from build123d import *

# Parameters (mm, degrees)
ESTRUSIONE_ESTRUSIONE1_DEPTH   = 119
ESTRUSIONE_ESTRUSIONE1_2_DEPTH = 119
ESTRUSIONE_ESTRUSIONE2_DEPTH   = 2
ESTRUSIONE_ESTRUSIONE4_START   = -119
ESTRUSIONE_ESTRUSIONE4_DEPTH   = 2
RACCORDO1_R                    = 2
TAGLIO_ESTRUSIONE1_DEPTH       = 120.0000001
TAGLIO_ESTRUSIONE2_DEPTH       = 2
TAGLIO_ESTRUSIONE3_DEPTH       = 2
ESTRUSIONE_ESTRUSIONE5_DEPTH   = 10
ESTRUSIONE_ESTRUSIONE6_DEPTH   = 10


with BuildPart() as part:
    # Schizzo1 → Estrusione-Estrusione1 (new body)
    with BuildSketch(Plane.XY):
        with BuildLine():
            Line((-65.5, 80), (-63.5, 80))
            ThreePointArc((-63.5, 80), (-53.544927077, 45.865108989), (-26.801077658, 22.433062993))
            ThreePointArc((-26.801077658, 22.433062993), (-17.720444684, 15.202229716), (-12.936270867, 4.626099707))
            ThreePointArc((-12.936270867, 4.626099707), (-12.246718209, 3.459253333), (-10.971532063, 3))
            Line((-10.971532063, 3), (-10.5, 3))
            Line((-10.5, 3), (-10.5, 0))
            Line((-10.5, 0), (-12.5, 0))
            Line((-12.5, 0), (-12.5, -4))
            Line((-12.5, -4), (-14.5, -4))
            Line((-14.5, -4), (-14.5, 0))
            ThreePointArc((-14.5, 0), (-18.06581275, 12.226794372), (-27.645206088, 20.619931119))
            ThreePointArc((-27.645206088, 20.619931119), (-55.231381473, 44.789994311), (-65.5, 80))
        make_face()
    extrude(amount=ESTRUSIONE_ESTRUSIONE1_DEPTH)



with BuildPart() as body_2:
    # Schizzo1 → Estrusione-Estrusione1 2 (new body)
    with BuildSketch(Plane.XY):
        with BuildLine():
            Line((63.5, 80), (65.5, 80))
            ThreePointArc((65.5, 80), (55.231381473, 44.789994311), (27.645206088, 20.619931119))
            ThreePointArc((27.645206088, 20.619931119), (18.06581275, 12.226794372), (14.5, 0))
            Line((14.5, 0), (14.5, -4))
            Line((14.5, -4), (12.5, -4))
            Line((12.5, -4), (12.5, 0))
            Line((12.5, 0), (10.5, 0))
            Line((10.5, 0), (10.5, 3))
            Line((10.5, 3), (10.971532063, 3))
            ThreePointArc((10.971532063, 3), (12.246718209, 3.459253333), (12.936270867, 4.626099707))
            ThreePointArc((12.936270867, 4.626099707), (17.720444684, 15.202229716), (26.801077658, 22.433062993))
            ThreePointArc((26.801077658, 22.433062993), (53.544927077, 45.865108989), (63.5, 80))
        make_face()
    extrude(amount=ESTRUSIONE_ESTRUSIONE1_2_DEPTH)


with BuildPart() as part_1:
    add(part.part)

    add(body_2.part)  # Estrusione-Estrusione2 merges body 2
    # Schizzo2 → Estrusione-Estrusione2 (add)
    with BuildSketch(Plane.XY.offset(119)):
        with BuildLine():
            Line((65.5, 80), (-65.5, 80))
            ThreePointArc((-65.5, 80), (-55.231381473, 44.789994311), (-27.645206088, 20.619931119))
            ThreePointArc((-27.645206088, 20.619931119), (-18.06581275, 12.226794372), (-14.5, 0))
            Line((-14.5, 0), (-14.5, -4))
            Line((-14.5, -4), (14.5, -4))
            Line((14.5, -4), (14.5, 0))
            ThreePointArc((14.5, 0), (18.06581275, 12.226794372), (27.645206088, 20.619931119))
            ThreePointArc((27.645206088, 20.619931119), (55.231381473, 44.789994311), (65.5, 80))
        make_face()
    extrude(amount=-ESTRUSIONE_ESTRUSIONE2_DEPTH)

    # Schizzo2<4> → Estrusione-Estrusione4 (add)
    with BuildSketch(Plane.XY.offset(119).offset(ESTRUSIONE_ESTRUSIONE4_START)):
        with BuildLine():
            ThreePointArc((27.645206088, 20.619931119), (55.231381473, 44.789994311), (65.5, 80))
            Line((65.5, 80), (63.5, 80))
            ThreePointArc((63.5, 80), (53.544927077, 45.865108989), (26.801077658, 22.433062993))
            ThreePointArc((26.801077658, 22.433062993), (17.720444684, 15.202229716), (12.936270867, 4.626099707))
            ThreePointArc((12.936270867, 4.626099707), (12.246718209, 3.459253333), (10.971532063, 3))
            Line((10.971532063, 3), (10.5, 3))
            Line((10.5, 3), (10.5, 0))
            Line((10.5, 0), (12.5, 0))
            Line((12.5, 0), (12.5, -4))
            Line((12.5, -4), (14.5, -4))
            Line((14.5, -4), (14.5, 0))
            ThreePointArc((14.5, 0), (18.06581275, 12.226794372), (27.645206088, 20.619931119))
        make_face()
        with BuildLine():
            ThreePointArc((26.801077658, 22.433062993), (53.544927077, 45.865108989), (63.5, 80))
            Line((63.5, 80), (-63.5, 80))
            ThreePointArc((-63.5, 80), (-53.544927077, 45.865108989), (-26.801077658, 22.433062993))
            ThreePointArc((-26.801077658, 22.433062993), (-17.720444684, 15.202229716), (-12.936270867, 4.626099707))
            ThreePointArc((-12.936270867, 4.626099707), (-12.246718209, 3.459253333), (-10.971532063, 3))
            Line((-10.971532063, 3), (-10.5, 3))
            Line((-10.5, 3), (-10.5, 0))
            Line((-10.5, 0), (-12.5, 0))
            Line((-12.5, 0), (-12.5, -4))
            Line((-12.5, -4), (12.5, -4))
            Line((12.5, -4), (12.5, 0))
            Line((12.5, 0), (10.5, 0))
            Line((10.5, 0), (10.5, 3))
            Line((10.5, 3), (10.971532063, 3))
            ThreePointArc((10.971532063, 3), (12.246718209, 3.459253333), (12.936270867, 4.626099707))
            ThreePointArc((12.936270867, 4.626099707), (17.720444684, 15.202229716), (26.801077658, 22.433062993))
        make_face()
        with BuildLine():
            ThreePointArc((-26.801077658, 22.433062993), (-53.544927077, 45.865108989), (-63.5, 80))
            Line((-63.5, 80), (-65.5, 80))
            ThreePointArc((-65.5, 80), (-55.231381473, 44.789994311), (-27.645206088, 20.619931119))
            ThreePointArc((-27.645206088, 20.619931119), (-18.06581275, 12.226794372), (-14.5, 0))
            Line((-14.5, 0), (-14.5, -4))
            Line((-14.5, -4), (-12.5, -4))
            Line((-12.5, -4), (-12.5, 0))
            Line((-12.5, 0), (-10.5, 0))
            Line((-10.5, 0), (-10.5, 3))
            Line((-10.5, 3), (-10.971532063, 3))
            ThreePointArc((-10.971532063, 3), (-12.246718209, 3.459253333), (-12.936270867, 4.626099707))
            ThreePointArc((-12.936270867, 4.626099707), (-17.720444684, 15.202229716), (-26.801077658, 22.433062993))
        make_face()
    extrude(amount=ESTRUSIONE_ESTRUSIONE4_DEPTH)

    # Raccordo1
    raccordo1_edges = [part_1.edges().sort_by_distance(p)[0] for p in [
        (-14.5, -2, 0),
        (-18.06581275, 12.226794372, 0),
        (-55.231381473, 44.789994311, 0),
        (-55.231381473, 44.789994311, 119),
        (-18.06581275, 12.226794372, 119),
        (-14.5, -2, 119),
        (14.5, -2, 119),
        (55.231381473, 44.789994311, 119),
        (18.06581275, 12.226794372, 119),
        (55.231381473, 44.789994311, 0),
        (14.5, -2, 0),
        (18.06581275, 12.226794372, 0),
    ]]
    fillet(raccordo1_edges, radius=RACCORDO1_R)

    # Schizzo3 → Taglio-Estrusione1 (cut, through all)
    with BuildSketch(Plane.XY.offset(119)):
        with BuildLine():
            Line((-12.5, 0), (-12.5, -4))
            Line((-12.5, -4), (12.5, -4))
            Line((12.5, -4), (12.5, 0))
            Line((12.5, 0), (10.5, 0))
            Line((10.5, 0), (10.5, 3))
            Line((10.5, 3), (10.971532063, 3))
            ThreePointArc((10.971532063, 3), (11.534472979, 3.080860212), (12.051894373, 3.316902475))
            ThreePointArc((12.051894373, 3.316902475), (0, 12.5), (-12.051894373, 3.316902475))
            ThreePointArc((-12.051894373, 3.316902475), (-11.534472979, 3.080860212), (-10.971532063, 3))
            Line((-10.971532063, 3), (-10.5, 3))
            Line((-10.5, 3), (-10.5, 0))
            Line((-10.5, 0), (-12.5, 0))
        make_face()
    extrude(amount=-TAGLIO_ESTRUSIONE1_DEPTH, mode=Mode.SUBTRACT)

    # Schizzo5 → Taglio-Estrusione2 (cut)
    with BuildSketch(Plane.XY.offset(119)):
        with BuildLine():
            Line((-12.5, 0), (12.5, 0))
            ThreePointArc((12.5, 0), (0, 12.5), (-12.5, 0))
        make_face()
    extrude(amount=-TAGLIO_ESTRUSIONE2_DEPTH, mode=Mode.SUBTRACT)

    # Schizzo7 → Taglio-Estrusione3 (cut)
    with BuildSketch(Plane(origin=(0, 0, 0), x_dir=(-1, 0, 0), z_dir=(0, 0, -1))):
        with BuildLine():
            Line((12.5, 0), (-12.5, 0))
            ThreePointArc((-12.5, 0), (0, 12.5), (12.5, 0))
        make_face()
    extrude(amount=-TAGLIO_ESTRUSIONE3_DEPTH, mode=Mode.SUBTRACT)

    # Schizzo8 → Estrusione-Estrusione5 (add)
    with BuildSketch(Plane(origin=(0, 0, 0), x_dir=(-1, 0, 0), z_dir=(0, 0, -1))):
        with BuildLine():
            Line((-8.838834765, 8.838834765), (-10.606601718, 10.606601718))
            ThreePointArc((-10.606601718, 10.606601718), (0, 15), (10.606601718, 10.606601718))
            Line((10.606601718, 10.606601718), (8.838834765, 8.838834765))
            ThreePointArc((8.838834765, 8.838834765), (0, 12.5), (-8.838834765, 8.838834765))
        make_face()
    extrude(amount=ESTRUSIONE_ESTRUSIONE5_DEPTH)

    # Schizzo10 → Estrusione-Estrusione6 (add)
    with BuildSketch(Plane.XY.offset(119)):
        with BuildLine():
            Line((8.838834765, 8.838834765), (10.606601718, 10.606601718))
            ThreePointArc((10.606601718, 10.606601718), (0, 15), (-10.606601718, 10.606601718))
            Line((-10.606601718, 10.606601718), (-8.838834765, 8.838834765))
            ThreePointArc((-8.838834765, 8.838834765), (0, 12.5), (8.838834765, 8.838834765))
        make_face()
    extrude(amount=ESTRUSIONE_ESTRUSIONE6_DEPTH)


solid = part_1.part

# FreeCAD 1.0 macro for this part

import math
import FreeCAD as App
import Part
import Sketcher
from FreeCAD import Vector
Q = App.Units.Quantity


def edges_at(feature, points):
    """Names of the edges that pass closest to the given points."""
    edges = feature.Shape.Edges
    near = lambda p: min(range(len(edges)), key=lambda i: edges[i].distToShape(Part.Vertex(*p))[0])
    return sorted({f"Edge{near(p) + 1}" for p in points})

doc = App.newDocument("Part")
body = doc.addObject("PartDesign::Body", "Body")

sketch1 = body.newObject("Sketcher::SketchObject", "Sketch")
sketch1.AttachmentSupport = (doc.getObject("XY_Plane"), [""])
sketch1.MapMode = "FlatFace"
sketch1.addGeometry([
    Part.LineSegment(Vector(-63.5, 80, 0), Vector(-65.5, 80, 0)),
    Part.ArcOfCircle(Part.Circle(Vector(0, 80, 0), Vector(0, 0, 1), 65.5), math.radians(180), math.radians(245)),
    Part.ArcOfCircle(Part.Circle(Vector(-37.25, 0, 0), Vector(0, 0, 1), 22.75), math.radians(0), math.radians(65)),
    Part.LineSegment(Vector(-14.5, 0, 0), Vector(-14.5, -4, 0)),
    Part.LineSegment(Vector(-14.5, -4, 0), Vector(-12.5, -4, 0)),
    Part.LineSegment(Vector(-12.5, -4, 0), Vector(-12.5, 0, 0)),
    Part.LineSegment(Vector(-12.5, 0, 0), Vector(-10.5, 0, 0)),
    Part.LineSegment(Vector(-10.5, 0, 0), Vector(-10.5, 3, 0)),
    Part.LineSegment(Vector(-10.5, 3, 0), Vector(-10.97, 3, 0)),
    Part.ArcOfCircle(Part.Circle(Vector(-10.97, 5, 0), Vector(0, 0, 1), 2), math.radians(-169), math.radians(-90)),
    Part.ArcOfCircle(Part.Circle(Vector(-37.25, 0, 0), Vector(0, 0, 1), 24.75), math.radians(11), math.radians(65)),
    Part.ArcOfCircle(Part.Circle(Vector(0, 80, 0), Vector(0, 0, 1), 63.5), math.radians(180), math.radians(245)),
], False)
sketch1.addConstraint([
    Sketcher.Constraint("Coincident", 0, 2, 1, 1),
    Sketcher.Constraint("Tangent", 1, 2, 2, 2),
    Sketcher.Constraint("Tangent", 2, 1, 3, 1),
    Sketcher.Constraint("Coincident", 3, 2, 4, 1),
    Sketcher.Constraint("Coincident", 4, 2, 5, 1),
    Sketcher.Constraint("Coincident", 5, 2, 6, 1),
    Sketcher.Constraint("Coincident", 6, 2, 7, 1),
    Sketcher.Constraint("Coincident", 7, 2, 8, 1),
    Sketcher.Constraint("Tangent", 8, 2, 9, 2),
    Sketcher.Constraint("Tangent", 9, 1, 10, 1),
    Sketcher.Constraint("Tangent", 10, 2, 11, 2),
    Sketcher.Constraint("Coincident", 11, 1, 0, 1),
    Sketcher.Constraint("Horizontal", 0),
    Sketcher.Constraint("Vertical", 3),
    Sketcher.Constraint("Horizontal", 4),
    Sketcher.Constraint("Vertical", 5),
    Sketcher.Constraint("Horizontal", 6),
    Sketcher.Constraint("Vertical", 7),
    Sketcher.Constraint("Horizontal", 8),
    Sketcher.Constraint("Coincident", 10, 3, 2, 3),
    Sketcher.Constraint("Coincident", 11, 3, 1, 3),
    Sketcher.Constraint("PointOnObject", 1, 3, -2),
    Sketcher.Constraint("PointOnObject", 2, 3, -1),
    Sketcher.Constraint("PointOnObject", 5, 2, -1),
    Sketcher.Constraint("Horizontal", 11, 3, 0, 2),
    Sketcher.Constraint("Equal", 0, 4),
    Sketcher.Constraint("Equal", 4, 6),
    Sketcher.Constraint("Radius", 9, Q("2 mm")),
    Sketcher.Constraint("Radius", 1, Q("65.5 mm")),
    Sketcher.Constraint("Radius", 11, Q("63.5 mm")),
    Sketcher.Constraint("DistanceY", 3, 2, 3, 1, Q("4 mm")),
    Sketcher.Constraint("DistanceY", 7, 1, 7, 2, Q("3 mm")),
    Sketcher.Constraint("DistanceY", -1, 1, 1, 3, Q("80 mm")),
    Sketcher.Constraint("DistanceX", 2, 1, -1, 1, Q("14.5 mm")),
])
pad1 = body.newObject("PartDesign::Pad", "Pad")
pad1.Profile = sketch1
pad1.Length = 119
body2 = doc.addObject("PartDesign::Body", "Body001")

sketch2 = body2.newObject("Sketcher::SketchObject", "Sketch001")
sketch2.AttachmentSupport = (doc.getObject("XY_Plane001"), [""])
sketch2.MapMode = "FlatFace"
sketch2.addGeometry([
    Part.LineSegment(Vector(65.5, 80, 0), Vector(63.5, 80, 0)),
    Part.ArcOfCircle(Part.Circle(Vector(0, 80, 0), Vector(0, 0, 1), 63.5), math.radians(-65), math.radians(0)),
    Part.ArcOfCircle(Part.Circle(Vector(37.25, 0, 0), Vector(0, 0, 1), 24.75), math.radians(115), math.radians(169)),
    Part.ArcOfCircle(Part.Circle(Vector(10.97, 5, 0), Vector(0, 0, 1), 2), math.radians(-90), math.radians(-11)),
    Part.LineSegment(Vector(10.97, 3, 0), Vector(10.5, 3, 0)),
    Part.LineSegment(Vector(10.5, 3, 0), Vector(10.5, 0, 0)),
    Part.LineSegment(Vector(10.5, 0, 0), Vector(12.5, 0, 0)),
    Part.LineSegment(Vector(12.5, 0, 0), Vector(12.5, -4, 0)),
    Part.LineSegment(Vector(12.5, -4, 0), Vector(14.5, -4, 0)),
    Part.LineSegment(Vector(14.5, -4, 0), Vector(14.5, 0, 0)),
    Part.ArcOfCircle(Part.Circle(Vector(37.25, 0, 0), Vector(0, 0, 1), 22.75), math.radians(115), math.radians(180)),
    Part.ArcOfCircle(Part.Circle(Vector(0, 80, 0), Vector(0, 0, 1), 65.5), math.radians(-65), math.radians(0)),
], False)
sketch2.addConstraint([
    Sketcher.Constraint("Coincident", 0, 2, 1, 2),
    Sketcher.Constraint("Tangent", 1, 1, 2, 1),
    Sketcher.Constraint("Tangent", 2, 2, 3, 2),
    Sketcher.Constraint("Tangent", 3, 1, 4, 1),
    Sketcher.Constraint("Coincident", 4, 2, 5, 1),
    Sketcher.Constraint("Coincident", 5, 2, 6, 1),
    Sketcher.Constraint("Coincident", 6, 2, 7, 1),
    Sketcher.Constraint("Coincident", 7, 2, 8, 1),
    Sketcher.Constraint("Coincident", 8, 2, 9, 1),
    Sketcher.Constraint("Tangent", 9, 2, 10, 2),
    Sketcher.Constraint("Tangent", 10, 1, 11, 1),
    Sketcher.Constraint("Coincident", 11, 2, 0, 1),
    Sketcher.Constraint("Horizontal", 0),
    Sketcher.Constraint("Horizontal", 4),
    Sketcher.Constraint("Vertical", 5),
    Sketcher.Constraint("Horizontal", 6),
    Sketcher.Constraint("Vertical", 7),
    Sketcher.Constraint("Horizontal", 8),
    Sketcher.Constraint("Vertical", 9),
    Sketcher.Constraint("Coincident", 10, 3, 2, 3),
    Sketcher.Constraint("Coincident", 11, 3, 1, 3),
    Sketcher.Constraint("PointOnObject", 1, 3, -2),
    Sketcher.Constraint("PointOnObject", 2, 3, -1),
    Sketcher.Constraint("PointOnObject", 5, 2, -1),
    Sketcher.Constraint("Horizontal", 11, 3, 0, 2),
    Sketcher.Constraint("Equal", 0, 6),
    Sketcher.Constraint("Equal", 6, 8),
    Sketcher.Constraint("Radius", 3, Q("2 mm")),
    Sketcher.Constraint("Radius", 1, Q("63.5 mm")),
    Sketcher.Constraint("Radius", 11, Q("65.5 mm")),
    Sketcher.Constraint("DistanceY", 5, 2, 5, 1, Q("3 mm")),
    Sketcher.Constraint("DistanceY", 7, 2, 7, 1, Q("4 mm")),
    Sketcher.Constraint("DistanceY", -1, 1, 1, 3, Q("80 mm")),
    Sketcher.Constraint("DistanceX", -1, 1, 4, 2, Q("10.5 mm")),
])
pad2 = body2.newObject("PartDesign::Pad", "Pad001")
pad2.Profile = sketch2
pad2.Length = 119
body.AllowCompound = True
doc.recompute()

boolean = body.newObject("PartDesign::Boolean", "Boolean")
boolean.Type = "Fuse"
boolean.addObjects([body2])

sketch3 = body.newObject("Sketcher::SketchObject", "Sketch002")
sketch3.AttachmentSupport = (doc.getObject("XY_Plane"), [""])
sketch3.MapMode = "FlatFace"
sketch3.AttachmentOffset = App.Placement(Vector(0, 0, 119), App.Rotation())
sketch3.addGeometry([
    Part.LineSegment(Vector(65.5, 80, 0), Vector(-65.5, 80, 0)),
    Part.ArcOfCircle(Part.Circle(Vector(0, 80, 0), Vector(0, 0, 1), 65.5), math.radians(180), math.radians(245)),
    Part.ArcOfCircle(Part.Circle(Vector(-37.2, 0, 0), Vector(0, 0, 1), 22.7), math.radians(0), math.radians(65)),
    Part.LineSegment(Vector(-14.5, 0, 0), Vector(-14.5, -4, 0)),
    Part.LineSegment(Vector(-14.5, -4, 0), Vector(14.5, -4, 0)),
    Part.LineSegment(Vector(14.5, -4, 0), Vector(14.5, 0, 0)),
    Part.ArcOfCircle(Part.Circle(Vector(37.2, 0, 0), Vector(0, 0, 1), 22.7), math.radians(115), math.radians(180)),
    Part.ArcOfCircle(Part.Circle(Vector(0, 80, 0), Vector(0, 0, 1), 65.5), math.radians(-65), math.radians(0)),
], False)
sketch3.addConstraint([
    Sketcher.Constraint("Coincident", 0, 2, 1, 1),
    Sketcher.Constraint("Tangent", 1, 2, 2, 2),
    Sketcher.Constraint("Tangent", 2, 1, 3, 1),
    Sketcher.Constraint("Coincident", 3, 2, 4, 1),
    Sketcher.Constraint("Coincident", 4, 2, 5, 1),
    Sketcher.Constraint("Tangent", 5, 2, 6, 2),
    Sketcher.Constraint("Tangent", 6, 1, 7, 1),
    Sketcher.Constraint("Coincident", 7, 2, 0, 1),
    Sketcher.Constraint("Horizontal", 0),
    Sketcher.Constraint("Vertical", 3),
    Sketcher.Constraint("Horizontal", 4),
    Sketcher.Constraint("Vertical", 5),
    Sketcher.Constraint("Coincident", 7, 3, 1, 3),
    Sketcher.Constraint("Equal", 2, 6),
    Sketcher.Constraint("Equal", 1, 7),
    Sketcher.Constraint("Symmetric", 2, 3, 6, 3, -1, 1),
    Sketcher.Constraint("PointOnObject", 1, 3, -2),
    Sketcher.Constraint("Horizontal", 7, 3, 0, 2),
    Sketcher.Constraint("Radius", 1, Q("65.5 mm")),
    Sketcher.Constraint("DistanceX", 4, 1, 4, 2, Q("29 mm")),
    Sketcher.Constraint("DistanceY", 3, 2, 3, 1, Q("4 mm")),
    Sketcher.Constraint("DistanceY", -1, 1, 1, 3, Q("80 mm")),
])
pad3 = body.newObject("PartDesign::Pad", "Pad002")
pad3.Profile = sketch3
pad3.Length = 2
pad3.Reversed = True

sketch4 = body.newObject("Sketcher::SketchObject", "Sketch003")
sketch4.AttachmentSupport = (doc.getObject("XY_Plane"), [""])
sketch4.MapMode = "FlatFace"
sketch4.addGeometry([
    Part.ArcOfCircle(Part.Circle(Vector(0, 80, 0), Vector(0, 0, 1), 65.5), math.radians(-65), math.radians(0)),
    Part.LineSegment(Vector(65.5, 80, 0), Vector(-65.5, 80, 0)),
    Part.ArcOfCircle(Part.Circle(Vector(0, 80, 0), Vector(0, 0, 1), 65.5), math.radians(180), math.radians(245)),
    Part.ArcOfCircle(Part.Circle(Vector(-37.2, 0, 0), Vector(0, 0, 1), 22.7), math.radians(0), math.radians(65)),
    Part.LineSegment(Vector(-14.5, 0, 0), Vector(-14.5, -4, 0)),
    Part.LineSegment(Vector(-14.5, -4, 0), Vector(14.5, -4, 0)),
    Part.LineSegment(Vector(14.5, -4, 0), Vector(14.5, 0, 0)),
    Part.ArcOfCircle(Part.Circle(Vector(37.2, 0, 0), Vector(0, 0, 1), 22.7), math.radians(115), math.radians(180)),
], False)
sketch4.addConstraint([
    Sketcher.Constraint("Coincident", 0, 2, 1, 1),
    Sketcher.Constraint("Coincident", 1, 2, 2, 1),
    Sketcher.Constraint("Tangent", 2, 2, 3, 2),
    Sketcher.Constraint("Tangent", 3, 1, 4, 1),
    Sketcher.Constraint("Coincident", 4, 2, 5, 1),
    Sketcher.Constraint("Coincident", 5, 2, 6, 1),
    Sketcher.Constraint("Tangent", 6, 2, 7, 2),
    Sketcher.Constraint("Tangent", 7, 1, 0, 1),
    Sketcher.Constraint("Horizontal", 1),
    Sketcher.Constraint("Vertical", 4),
    Sketcher.Constraint("Horizontal", 5),
    Sketcher.Constraint("Vertical", 6),
    Sketcher.Constraint("Coincident", 2, 3, 0, 3),
    Sketcher.Constraint("Equal", 0, 2),
    Sketcher.Constraint("Equal", 3, 7),
    Sketcher.Constraint("Symmetric", 3, 3, 7, 3, -1, 1),
    Sketcher.Constraint("PointOnObject", 0, 3, -2),
    Sketcher.Constraint("Horizontal", 2, 3, 0, 2),
    Sketcher.Constraint("Radius", 0, Q("65.5 mm")),
    Sketcher.Constraint("DistanceX", 5, 1, 5, 2, Q("29 mm")),
    Sketcher.Constraint("DistanceY", 4, 2, 4, 1, Q("4 mm")),
    Sketcher.Constraint("DistanceY", -1, 1, 0, 3, Q("80 mm")),
])
pad4 = body.newObject("PartDesign::Pad", "Pad003")
pad4.Profile = sketch4
pad4.Length = 2
doc.recompute()

fillet = body.newObject("PartDesign::Fillet", "Fillet")
fillet.Base = (pad4, edges_at(pad4, [
    (-14.5, -2, 0),
    (-18.066, 12.227, 0),
    (-55.231, 44.79, 0),
    (-55.231, 44.79, 119),
    (-18.066, 12.227, 119),
    (-14.5, -2, 119),
    (14.5, -2, 119),
    (55.231, 44.79, 119),
    (18.066, 12.227, 119),
    (55.231, 44.79, 0),
    (14.5, -2, 0),
    (18.066, 12.227, 0),
]))
fillet.Radius = 2

sketch5 = body.newObject("Sketcher::SketchObject", "Sketch004")
sketch5.AttachmentSupport = (doc.getObject("XY_Plane"), [""])
sketch5.MapMode = "FlatFace"
sketch5.AttachmentOffset = App.Placement(Vector(0, 0, 119), App.Rotation())
sketch5.addGeometry([
    Part.LineSegment(Vector(-12.5, 0, 0), Vector(-12.5, -4, 0)),
    Part.LineSegment(Vector(-12.5, -4, 0), Vector(12.5, -4, 0)),
    Part.LineSegment(Vector(12.5, -4, 0), Vector(12.5, 0, 0)),
    Part.LineSegment(Vector(12.5, 0, 0), Vector(10.5, 0, 0)),
    Part.LineSegment(Vector(10.5, 0, 0), Vector(10.5, 3, 0)),
    Part.LineSegment(Vector(10.5, 3, 0), Vector(10.97, 3, 0)),
    Part.ArcOfCircle(Part.Circle(Vector(10.97, 5, 0), Vector(0, 0, 1), 2), math.radians(-90), math.radians(-57)),
    Part.ArcOfCircle(Part.Circle(Vector(0, 0, 0), Vector(0, 0, 1), 12.5), math.radians(15), math.radians(165)),
    Part.ArcOfCircle(Part.Circle(Vector(-10.97, 5, 0), Vector(0, 0, 1), 2), math.radians(-123), math.radians(-90)),
    Part.LineSegment(Vector(-10.97, 3, 0), Vector(-10.5, 3, 0)),
    Part.LineSegment(Vector(-10.5, 3, 0), Vector(-10.5, 0, 0)),
    Part.LineSegment(Vector(-10.5, 0, 0), Vector(-12.5, 0, 0)),
], False)
sketch5.addConstraint([
    Sketcher.Constraint("Coincident", 0, 2, 1, 1),
    Sketcher.Constraint("Coincident", 1, 2, 2, 1),
    Sketcher.Constraint("Coincident", 2, 2, 3, 1),
    Sketcher.Constraint("Coincident", 3, 2, 4, 1),
    Sketcher.Constraint("Coincident", 4, 2, 5, 1),
    Sketcher.Constraint("Tangent", 5, 2, 6, 1),
    Sketcher.Constraint("Coincident", 6, 2, 7, 1),
    Sketcher.Constraint("Coincident", 7, 2, 8, 1),
    Sketcher.Constraint("Tangent", 8, 2, 9, 1),
    Sketcher.Constraint("Coincident", 9, 2, 10, 1),
    Sketcher.Constraint("Coincident", 10, 2, 11, 1),
    Sketcher.Constraint("Coincident", 11, 2, 0, 1),
    Sketcher.Constraint("Vertical", 0),
    Sketcher.Constraint("Horizontal", 1),
    Sketcher.Constraint("Vertical", 2),
    Sketcher.Constraint("Horizontal", 3),
    Sketcher.Constraint("Vertical", 4),
    Sketcher.Constraint("Horizontal", 5),
    Sketcher.Constraint("Horizontal", 9),
    Sketcher.Constraint("Vertical", 10),
    Sketcher.Constraint("Horizontal", 11),
    Sketcher.Constraint("Coincident", 7, 3, -1, 1),
    Sketcher.Constraint("Equal", 6, 8),
    Sketcher.Constraint("Symmetric", 3, 2, 10, 2, -1, 1),
    Sketcher.Constraint("Symmetric", 6, 3, 8, 3, -2),
    Sketcher.Constraint("Symmetric", 2, 2, 11, 2, -2),
    Sketcher.Constraint("Radius", 6, Q("2 mm")),
    Sketcher.Constraint("Radius", 7, Q("12.5 mm")),
    Sketcher.Constraint("DistanceX", 1, 1, 1, 2, Q("25 mm")),
    Sketcher.Constraint("DistanceX", 3, 2, 3, 1, Q("2 mm")),
    Sketcher.Constraint("DistanceY", 0, 2, 0, 1, Q("4 mm")),
    Sketcher.Constraint("DistanceY", 4, 1, 4, 2, Q("3 mm")),
    Sketcher.Constraint("DistanceX", 5, 1, 5, 2, Q("0.471532 mm")),
])
pocket1 = body.newObject("PartDesign::Pocket", "Pocket")
pocket1.Profile = sketch5
pocket1.Type = "ThroughAll"

sketch6 = body.newObject("Sketcher::SketchObject", "Sketch005")
sketch6.AttachmentSupport = (doc.getObject("XY_Plane"), [""])
sketch6.MapMode = "FlatFace"
sketch6.AttachmentOffset = App.Placement(Vector(0, 0, 119), App.Rotation())
sketch6.addGeometry([
    Part.LineSegment(Vector(-12, 0, 0), Vector(12, 0, 0)),
    Part.ArcOfCircle(Part.Circle(Vector(0, 0, 0), Vector(0, 0, 1), 12), math.radians(0), math.radians(180)),
], False)
sketch6.addConstraint([
    Sketcher.Constraint("Coincident", 0, 1, 1, 2),
    Sketcher.Constraint("Coincident", 1, 1, 0, 2),
    Sketcher.Constraint("Horizontal", 0),
    Sketcher.Constraint("Coincident", 1, 3, -1, 1),
    Sketcher.Constraint("PointOnObject", 0, 1, -1),
    Sketcher.Constraint("Radius", 1, Q("12.5 mm")),
])
pocket2 = body.newObject("PartDesign::Pocket", "Pocket001")
pocket2.Profile = sketch6
pocket2.Length = 2

sketch7 = body.newObject("Sketcher::SketchObject", "Sketch006")
sketch7.AttachmentSupport = (doc.getObject("XY_Plane"), [""])
sketch7.MapMode = "FlatFace"
sketch7.addGeometry([
    Part.LineSegment(Vector(12, 0, 0), Vector(-12, 0, 0)),
    Part.ArcOfCircle(Part.Circle(Vector(0, 0, 0), Vector(0, 0, 1), 12), math.radians(0), math.radians(180)),
], False)
sketch7.addConstraint([
    Sketcher.Constraint("Coincident", 0, 1, 1, 1),
    Sketcher.Constraint("Coincident", 1, 2, 0, 2),
    Sketcher.Constraint("Horizontal", 0),
    Sketcher.Constraint("Coincident", 1, 3, -1, 1),
    Sketcher.Constraint("PointOnObject", 0, 1, -1),
    Sketcher.Constraint("Radius", 1, Q("12.5 mm")),
])
pocket3 = body.newObject("PartDesign::Pocket", "Pocket002")
pocket3.Profile = sketch7
pocket3.Length = 2
pocket3.Reversed = True

sketch8 = body.newObject("Sketcher::SketchObject", "Sketch007")
sketch8.AttachmentSupport = (doc.getObject("XY_Plane"), [""])
sketch8.MapMode = "FlatFace"
sketch8.addGeometry([
    Part.LineSegment(Vector(10.6, 10.6, 0), Vector(8.8, 8.8, 0)),
    Part.ArcOfCircle(Part.Circle(Vector(0, 0, 0), Vector(0, 0, 1), 12.5), math.radians(45), math.radians(135)),
    Part.LineSegment(Vector(-8.8, 8.8, 0), Vector(-10.6, 10.6, 0)),
    Part.ArcOfCircle(Part.Circle(Vector(0, 0, 0), Vector(0, 0, 1), 15), math.radians(45), math.radians(135)),
], False)
sketch8.addConstraint([
    Sketcher.Constraint("Coincident", 0, 2, 1, 1),
    Sketcher.Constraint("Coincident", 1, 2, 2, 1),
    Sketcher.Constraint("Coincident", 2, 2, 3, 2),
    Sketcher.Constraint("Coincident", 3, 1, 0, 1),
    Sketcher.Constraint("Coincident", 1, 3, -1, 1),
    Sketcher.Constraint("Coincident", 3, 3, -1, 1),
    Sketcher.Constraint("Perpendicular", 0, 2),
    Sketcher.Constraint("Horizontal", 0, 2, 1, 2),
    Sketcher.Constraint("Horizontal", 2, 2, 3, 1),
    Sketcher.Constraint("Radius", 3, Q("15 mm")),
    Sketcher.Constraint("Radius", 1, Q("12.5 mm")),
    Sketcher.Constraint("DistanceX", 2, 2, -1, 1, Q("10.606602 mm")),
])
pad5 = body.newObject("PartDesign::Pad", "Pad004")
pad5.Profile = sketch8
pad5.Length = 10
pad5.Reversed = True

sketch9 = body.newObject("Sketcher::SketchObject", "Sketch008")
sketch9.AttachmentSupport = (doc.getObject("XY_Plane"), [""])
sketch9.MapMode = "FlatFace"
sketch9.AttachmentOffset = App.Placement(Vector(0, 0, 119), App.Rotation())
sketch9.addGeometry([
    Part.LineSegment(Vector(8.8, 8.8, 0), Vector(10.6, 10.6, 0)),
    Part.ArcOfCircle(Part.Circle(Vector(0, 0, 0), Vector(0, 0, 1), 15), math.radians(45), math.radians(135)),
    Part.LineSegment(Vector(-10.6, 10.6, 0), Vector(-8.8, 8.8, 0)),
    Part.ArcOfCircle(Part.Circle(Vector(0, 0, 0), Vector(0, 0, 1), 12.5), math.radians(45), math.radians(135)),
], False)
sketch9.addConstraint([
    Sketcher.Constraint("Coincident", 0, 2, 1, 1),
    Sketcher.Constraint("Coincident", 1, 2, 2, 1),
    Sketcher.Constraint("Coincident", 2, 2, 3, 2),
    Sketcher.Constraint("Coincident", 3, 1, 0, 1),
    Sketcher.Constraint("Coincident", 1, 3, -1, 1),
    Sketcher.Constraint("Coincident", 3, 3, -1, 1),
    Sketcher.Constraint("Perpendicular", 0, 2),
    Sketcher.Constraint("Horizontal", 0, 2, 1, 2),
    Sketcher.Constraint("Horizontal", 2, 2, 3, 1),
    Sketcher.Constraint("Radius", 1, Q("15 mm")),
    Sketcher.Constraint("Radius", 3, Q("12.5 mm")),
    Sketcher.Constraint("DistanceX", -1, 1, 0, 2, Q("10.606602 mm")),
])
pad6 = body.newObject("PartDesign::Pad", "Pad005")
pad6.Profile = sketch9
pad6.Length = 10

doc.recompute()
